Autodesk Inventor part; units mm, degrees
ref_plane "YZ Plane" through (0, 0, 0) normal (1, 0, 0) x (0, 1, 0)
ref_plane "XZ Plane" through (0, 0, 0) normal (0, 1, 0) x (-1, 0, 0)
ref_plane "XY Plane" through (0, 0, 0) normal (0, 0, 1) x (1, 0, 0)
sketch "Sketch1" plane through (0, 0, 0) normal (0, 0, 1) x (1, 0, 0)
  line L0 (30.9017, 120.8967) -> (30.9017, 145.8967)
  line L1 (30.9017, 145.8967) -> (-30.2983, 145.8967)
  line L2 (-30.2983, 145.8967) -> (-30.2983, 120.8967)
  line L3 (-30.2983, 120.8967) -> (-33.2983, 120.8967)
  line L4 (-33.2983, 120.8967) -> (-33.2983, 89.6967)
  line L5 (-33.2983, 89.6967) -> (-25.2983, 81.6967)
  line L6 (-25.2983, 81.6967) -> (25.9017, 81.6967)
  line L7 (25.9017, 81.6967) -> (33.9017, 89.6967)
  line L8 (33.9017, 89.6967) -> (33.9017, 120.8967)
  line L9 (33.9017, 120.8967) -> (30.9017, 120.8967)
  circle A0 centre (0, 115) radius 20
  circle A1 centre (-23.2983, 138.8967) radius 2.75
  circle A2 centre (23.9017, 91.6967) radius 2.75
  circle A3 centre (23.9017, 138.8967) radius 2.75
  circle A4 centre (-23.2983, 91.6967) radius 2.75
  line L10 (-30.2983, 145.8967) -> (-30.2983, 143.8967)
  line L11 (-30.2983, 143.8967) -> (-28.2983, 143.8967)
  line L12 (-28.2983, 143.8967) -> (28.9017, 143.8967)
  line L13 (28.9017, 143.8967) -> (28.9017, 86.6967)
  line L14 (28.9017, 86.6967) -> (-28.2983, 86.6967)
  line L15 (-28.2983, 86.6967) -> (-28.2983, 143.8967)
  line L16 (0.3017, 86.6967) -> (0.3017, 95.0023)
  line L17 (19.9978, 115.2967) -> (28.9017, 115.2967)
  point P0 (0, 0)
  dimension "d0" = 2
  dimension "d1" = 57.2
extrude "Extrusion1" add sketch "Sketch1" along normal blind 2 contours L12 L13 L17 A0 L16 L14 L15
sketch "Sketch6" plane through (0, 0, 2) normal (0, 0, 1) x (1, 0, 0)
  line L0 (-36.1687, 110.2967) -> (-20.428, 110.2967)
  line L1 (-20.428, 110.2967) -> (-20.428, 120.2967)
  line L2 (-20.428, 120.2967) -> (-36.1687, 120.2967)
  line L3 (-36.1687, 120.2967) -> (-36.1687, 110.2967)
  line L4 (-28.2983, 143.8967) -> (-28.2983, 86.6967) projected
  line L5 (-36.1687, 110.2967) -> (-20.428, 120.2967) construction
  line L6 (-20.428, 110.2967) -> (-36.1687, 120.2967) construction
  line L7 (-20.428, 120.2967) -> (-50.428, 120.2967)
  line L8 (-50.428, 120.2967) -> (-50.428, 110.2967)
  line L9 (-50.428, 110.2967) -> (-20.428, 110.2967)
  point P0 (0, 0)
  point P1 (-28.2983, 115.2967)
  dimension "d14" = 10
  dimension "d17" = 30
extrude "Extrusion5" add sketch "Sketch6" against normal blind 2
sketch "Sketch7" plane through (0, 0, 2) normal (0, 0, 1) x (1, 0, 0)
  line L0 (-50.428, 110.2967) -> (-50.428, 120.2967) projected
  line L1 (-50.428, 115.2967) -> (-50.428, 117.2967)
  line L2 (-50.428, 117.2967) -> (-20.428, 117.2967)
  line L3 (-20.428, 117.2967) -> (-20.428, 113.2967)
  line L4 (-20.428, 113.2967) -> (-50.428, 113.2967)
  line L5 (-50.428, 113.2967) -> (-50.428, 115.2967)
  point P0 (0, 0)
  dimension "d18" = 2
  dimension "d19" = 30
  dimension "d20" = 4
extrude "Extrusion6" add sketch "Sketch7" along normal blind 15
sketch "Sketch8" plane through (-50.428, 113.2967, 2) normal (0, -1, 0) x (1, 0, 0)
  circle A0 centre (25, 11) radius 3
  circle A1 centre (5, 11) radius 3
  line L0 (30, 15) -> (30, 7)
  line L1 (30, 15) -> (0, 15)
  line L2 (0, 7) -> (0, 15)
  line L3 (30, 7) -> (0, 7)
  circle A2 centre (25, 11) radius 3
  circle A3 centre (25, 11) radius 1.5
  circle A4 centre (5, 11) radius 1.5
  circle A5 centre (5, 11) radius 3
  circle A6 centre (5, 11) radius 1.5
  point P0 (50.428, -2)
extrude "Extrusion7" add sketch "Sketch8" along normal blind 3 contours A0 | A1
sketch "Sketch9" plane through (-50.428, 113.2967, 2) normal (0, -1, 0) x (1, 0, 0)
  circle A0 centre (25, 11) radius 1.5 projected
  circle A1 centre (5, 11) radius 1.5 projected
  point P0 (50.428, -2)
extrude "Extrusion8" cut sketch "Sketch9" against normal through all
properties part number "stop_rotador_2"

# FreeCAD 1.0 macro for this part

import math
import FreeCAD as App
import Part
import Sketcher

V = App.Vector


def add_polygon(sketch, points):
    """Adds a closed chain of lines whose ends are joined by coincident constraints."""
    first, n = sketch.GeometryCount, len(points)
    for a, b in zip(points, points[1:] + points[:1]):
        sketch.addGeometry(Part.LineSegment(App.Vector(*a, 0), App.Vector(*b, 0)), False)
    for i in range(n):
        sketch.addConstraint(Sketcher.Constraint("Coincident", first + i, 2, first + (i + 1) % n, 1))

doc = App.newDocument("Part")
params = doc.addObject("Spreadsheet::Sheet", "Params")
for row, (alias, value) in enumerate([
    ("sketch1_width", "57.2 mm"),
    ("sketch1_radius", "20 mm"),
    ("sketch1_diameter", "5.5 mm"),
    ("sketch1_width2", "28.6 mm"),
    ("pad1_length", "2 mm"),
    ("sketch2_width", "30 mm"),
    ("sketch2_height", "10 mm"),
    ("pad2_length", "2 mm"),
    ("sketch3_width", "30 mm"),
    ("sketch3_height", "4 mm"),
    ("pad3_length", "15 mm"),
    ("sketch4_diameter", "6 mm"),
    ("sketch4_diameter2", "3 mm"),
    ("pad4_length", "3 mm"),
    ("sketch5_diameter", "3 mm"),
], start=1):
    params.set(f"A{row}", alias)
    params.set(f"B{row}", "=" + value)
    params.setAlias(f"B{row}", alias)

body = doc.addObject("PartDesign::Body", "Body")

# Sketch on XY plane
sketch1 = body.newObject("Sketcher::SketchObject", "Sketch")
sketch1.AttachmentSupport = (doc.getObject("XY_Plane"), [""])
sketch1.MapMode = "FlatFace"
sketch1.addGeometry([
    Part.LineSegment(V(28.9, 143.9, 0), V(-28.3, 143.9, 0)),  # 0
    Part.LineSegment(V(-28.3, 143.9, 0), V(-28.3, 86.7, 0)),  # 1
    Part.LineSegment(V(-28.3, 86.7, 0), V(0.3, 86.7, 0)),  # 2
    Part.LineSegment(V(0.3, 86.7, 0), V(0.3, 95, 0)),  # 3
    Part.ArcOfCircle(Part.Circle(V(0, 115, 0), V(0, 0, 1), 20), math.radians(1), math.radians(271)),  # 4
    Part.LineSegment(V(20, 115.3, 0), V(28.9, 115.3, 0)),  # 5
    Part.LineSegment(V(28.9, 115.3, 0), V(28.9, 143.9, 0)),  # 6
    Part.Circle(V(-23.3, 91.7, 0), V(0, 0, 1), 2.8),  # 7
    Part.Circle(V(-23.3, 138.9, 0), V(0, 0, 1), 2.8),  # 8
    Part.Circle(V(23.9, 138.9, 0), V(0, 0, 1), 2.8),  # 9
], False)
sketch1.addConstraint([
    Sketcher.Constraint("Coincident", 0, 2, 1, 1),
    Sketcher.Constraint("Coincident", 1, 2, 2, 1),
    Sketcher.Constraint("Coincident", 2, 2, 3, 1),
    Sketcher.Constraint("Coincident", 3, 2, 4, 2),
    Sketcher.Constraint("Coincident", 4, 1, 5, 1),
    Sketcher.Constraint("Coincident", 5, 2, 6, 1),
    Sketcher.Constraint("Coincident", 6, 2, 0, 1),
    Sketcher.Constraint("Horizontal", 0),
    Sketcher.Constraint("Vertical", 1),
    Sketcher.Constraint("Horizontal", 2),
    Sketcher.Constraint("Vertical", 3),
    Sketcher.Constraint("Horizontal", 5),
    Sketcher.Constraint("Vertical", 6),
    Sketcher.Constraint("Equal", 7, 8),
    Sketcher.Constraint("Equal", 8, 9),
    Sketcher.Constraint("PointOnObject", 4, 3, -2),
    Sketcher.Constraint("Horizontal", 8, 3, 9, 3),
    Sketcher.Constraint("Vertical", 7, 3, 8, 3),
    Sketcher.Constraint("Equal", 0, 1),
    Sketcher.Constraint("Equal", 2, 6),
    Sketcher.Constraint("DistanceX", 0, 2, 0, 1, 57.2),
    Sketcher.Constraint("Radius", 4, 20.0),
    Sketcher.Constraint("Diameter", 7, 5.5),
    Sketcher.Constraint("DistanceX", 2, 1, 2, 2, 28.6),
    Sketcher.Constraint("DistanceY", -1, 1, 4, 3, 115.0),
    Sketcher.Constraint("DistanceX", 0, 2, 8, 3, 5.0),
    Sketcher.Constraint("DistanceY", 8, 3, 0, 2, 5.0),
    Sketcher.Constraint("DistanceY", 1, 2, 7, 3, 5.0),
    Sketcher.Constraint("DistanceX", 9, 3, 5, 2, 5.0),
    Sketcher.Constraint("DistanceX", 5, 1, 5, 2, 8.904),
    Sketcher.Constraint("DistanceY", 3, 1, 3, 2, 8.3056),
])
sketch1.setExpression("Constraints[20]", "Params.sketch1_width")
sketch1.setExpression("Constraints[21]", "Params.sketch1_radius")
sketch1.setExpression("Constraints[22]", "Params.sketch1_diameter")
sketch1.setExpression("Constraints[23]", "Params.sketch1_width2")
pad1 = body.newObject("PartDesign::Pad", "Pad")
pad1.Profile = sketch1
pad1.setExpression("Length", "Params.pad1_length")

# Sketch on XY plane
sketch2 = body.newObject("Sketcher::SketchObject", "Sketch001")
sketch2.AttachmentSupport = (doc.getObject("XY_Plane"), [""])
sketch2.MapMode = "FlatFace"
sketch2.AttachmentOffset = App.Placement(V(0, 0, 2), App.Rotation())
add_polygon(sketch2, [(-50, 120), (-50, 110), (-20, 110), (-20, 120)])  # lines 0-3
sketch2.addConstraint([
    Sketcher.Constraint("Vertical", 0),
    Sketcher.Constraint("Horizontal", 1),
    Sketcher.Constraint("Vertical", 2),
    Sketcher.Constraint("Horizontal", 3),
    Sketcher.Constraint("DistanceX", 1, 1, 1, 2, 30.0),
    Sketcher.Constraint("DistanceY", 0, 2, 0, 1, 10.0),
    Sketcher.Constraint("DistanceX", 0, 2, -1, 1, 50.428),
    Sketcher.Constraint("DistanceY", -1, 1, 0, 2, 110.2967),
])
sketch2.setExpression("Constraints[8]", "Params.sketch2_width")
sketch2.setExpression("Constraints[9]", "Params.sketch2_height")
pad2 = body.newObject("PartDesign::Pad", "Pad001")
pad2.Profile = sketch2
pad2.setExpression("Length", "Params.pad2_length")
pad2.Reversed = True

# Sketch on XY plane
sketch3 = body.newObject("Sketcher::SketchObject", "Sketch002")
sketch3.AttachmentSupport = (doc.getObject("XY_Plane"), [""])
sketch3.MapMode = "FlatFace"
sketch3.AttachmentOffset = App.Placement(V(0, 0, 2), App.Rotation())
add_polygon(sketch3, [(-50.4, 117.3), (-50.4, 113.3), (-20.4, 113.3), (-20.4, 117.3)])  # lines 0-3
sketch3.addConstraint([
    Sketcher.Constraint("Vertical", 0),
    Sketcher.Constraint("Horizontal", 1),
    Sketcher.Constraint("Vertical", 2),
    Sketcher.Constraint("Horizontal", 3),
    Sketcher.Constraint("DistanceX", 1, 1, 1, 2, 30.0),
    Sketcher.Constraint("DistanceY", 0, 2, 0, 1, 4.0),
    Sketcher.Constraint("DistanceX", 0, 2, -1, 1, 50.428),
    Sketcher.Constraint("DistanceY", -1, 1, 0, 2, 113.2967),
])
sketch3.setExpression("Constraints[8]", "Params.sketch3_width")
sketch3.setExpression("Constraints[9]", "Params.sketch3_height")
pad3 = body.newObject("PartDesign::Pad", "Pad002")
pad3.Profile = sketch3
pad3.setExpression("Length", "Params.pad3_length")

# Sketch on XZ plane
sketch4 = body.newObject("Sketcher::SketchObject", "Sketch003")
sketch4.AttachmentSupport = (doc.getObject("XZ_Plane"), [""])
sketch4.MapMode = "FlatFace"
sketch4.AttachmentOffset = App.Placement(V(0, 0, -113.2967), App.Rotation())
sketch4.addGeometry([
    Part.Circle(V(-25.4, 13, 0), V(0, 0, 1), 3),
    Part.Circle(V(-25.4, 13, 0), V(0, 0, 1), 1.5),
    Part.Circle(V(-45.4, 13, 0), V(0, 0, 1), 3),
    Part.Circle(V(-45.4, 13, 0), V(0, 0, 1), 1.5),
], False)
sketch4.addConstraint([
    Sketcher.Constraint("Coincident", 1, 3, 0, 3),
    Sketcher.Constraint("Coincident", 3, 3, 2, 3),
    Sketcher.Constraint("Equal", 0, 2),
    Sketcher.Constraint("Equal", 1, 3),
    Sketcher.Constraint("Horizontal", 1, 3, 2, 3),
    Sketcher.Constraint("Diameter", 0, 6.0),
    Sketcher.Constraint("Diameter", 1, 3.0),
    Sketcher.Constraint("DistanceY", -1, 1, 0, 3, 13.0),
    Sketcher.Constraint("DistanceX", 2, 3, 0, 3, 20.0),
    Sketcher.Constraint("DistanceX", 0, 3, -1, 1, 25.428),
])
sketch4.setExpression("Constraints[5]", "Params.sketch4_diameter")
sketch4.setExpression("Constraints[6]", "Params.sketch4_diameter2")
pad4 = body.newObject("PartDesign::Pad", "Pad003")
pad4.Profile = sketch4
pad4.setExpression("Length", "Params.pad4_length")

# Sketch on XZ plane
sketch5 = body.newObject("Sketcher::SketchObject", "Sketch004")
sketch5.AttachmentSupport = (doc.getObject("XZ_Plane"), [""])
sketch5.MapMode = "FlatFace"
sketch5.AttachmentOffset = App.Placement(V(0, 0, -113.2967), App.Rotation())
sketch5.addGeometry([
    Part.Circle(V(-25.4, 13, 0), V(0, 0, 1), 1.5),
    Part.Circle(V(-45.4, 13, 0), V(0, 0, 1), 1.5),
], False)
sketch5.addConstraint([
    Sketcher.Constraint("Equal", 0, 1),
    Sketcher.Constraint("Horizontal", 0, 3, 1, 3),
    Sketcher.Constraint("Diameter", 0, 3.0),
    Sketcher.Constraint("DistanceY", -1, 1, 0, 3, 13.0),
    Sketcher.Constraint("DistanceX", 1, 3, 0, 3, 20.0),
    Sketcher.Constraint("DistanceX", 0, 3, -1, 1, 25.428),
])
sketch5.setExpression("Constraints[2]", "Params.sketch5_diameter")
pocket1 = body.newObject("PartDesign::Pocket", "Pocket")
pocket1.Profile = sketch5
pocket1.Type = "ThroughAll"

doc.recompute()
